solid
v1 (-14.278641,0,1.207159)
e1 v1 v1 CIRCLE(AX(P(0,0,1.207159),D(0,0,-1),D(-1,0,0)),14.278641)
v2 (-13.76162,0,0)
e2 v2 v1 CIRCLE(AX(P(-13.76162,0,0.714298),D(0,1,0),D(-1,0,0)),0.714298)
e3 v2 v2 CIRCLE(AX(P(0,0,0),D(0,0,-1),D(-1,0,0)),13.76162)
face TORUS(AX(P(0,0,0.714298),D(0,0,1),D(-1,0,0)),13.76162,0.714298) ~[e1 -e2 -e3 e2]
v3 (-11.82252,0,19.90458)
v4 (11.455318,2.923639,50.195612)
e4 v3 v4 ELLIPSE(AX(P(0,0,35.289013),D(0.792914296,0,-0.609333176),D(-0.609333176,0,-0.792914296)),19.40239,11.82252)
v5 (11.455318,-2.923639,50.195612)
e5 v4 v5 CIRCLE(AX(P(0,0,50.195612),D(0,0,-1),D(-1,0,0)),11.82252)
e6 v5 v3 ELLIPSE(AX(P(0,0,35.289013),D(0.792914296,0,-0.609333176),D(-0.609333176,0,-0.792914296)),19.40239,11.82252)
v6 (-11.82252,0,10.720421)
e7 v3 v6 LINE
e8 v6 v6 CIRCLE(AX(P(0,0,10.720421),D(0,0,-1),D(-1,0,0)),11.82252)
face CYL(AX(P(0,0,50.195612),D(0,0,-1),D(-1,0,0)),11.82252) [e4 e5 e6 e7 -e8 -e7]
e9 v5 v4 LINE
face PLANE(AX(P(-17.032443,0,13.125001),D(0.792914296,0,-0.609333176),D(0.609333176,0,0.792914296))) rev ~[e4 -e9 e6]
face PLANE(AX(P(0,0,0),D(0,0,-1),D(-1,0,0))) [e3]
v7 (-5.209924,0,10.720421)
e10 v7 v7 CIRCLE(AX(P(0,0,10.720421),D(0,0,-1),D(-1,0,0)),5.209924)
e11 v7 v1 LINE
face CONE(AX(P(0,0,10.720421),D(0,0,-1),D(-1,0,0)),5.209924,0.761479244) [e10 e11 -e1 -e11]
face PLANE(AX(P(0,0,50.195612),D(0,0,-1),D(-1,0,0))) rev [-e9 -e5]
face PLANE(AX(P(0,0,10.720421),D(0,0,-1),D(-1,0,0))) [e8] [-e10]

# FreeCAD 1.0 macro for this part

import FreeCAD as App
import Part
import Sketcher

V = App.Vector


def edges_at(feature, points):
    """Names of the edges that pass closest to the given points."""
    edges = feature.Shape.Edges
    near = lambda p: min(range(len(edges)), key=lambda i: edges[i].distToShape(Part.Vertex(*p))[0])
    return sorted({f"Edge{near(p) + 1}" for p in points})

doc = App.newDocument("Part")
body = doc.addObject("PartDesign::Body", "Body")

# Sketch on XZ plane
sketch1 = body.newObject("Sketcher::SketchObject", "Sketch")
sketch1.AttachmentSupport = (doc.getObject("XZ_Plane"), [""])
sketch1.MapMode = "FlatFace"
sketch1.addGeometry(Part.LineSegment(V(-15.42939, 0, 0), V(0, 0, 0)), False)
sketch1.addGeometry(Part.LineSegment(V(0, 0, 0), V(0, 50.195612, 0)), False)
sketch1.addGeometry(Part.LineSegment(V(0, 50.195612, 0), V(-11.82252, 50.195612, 0)), False)
sketch1.addGeometry(Part.LineSegment(V(-11.82252, 50.195612, 0), V(-11.82252, 10.720421, 0)), False)
sketch1.addGeometry(Part.LineSegment(V(-11.82252, 10.720421, 0), V(-5.209924, 10.720421, 0)), False)
sketch1.addGeometry(Part.LineSegment(V(-5.209924, 10.720421, 0), V(-15.42939, 0, 0)), False)
sketch1.addConstraint(Sketcher.Constraint("Coincident", 0, 2, 1, 1))
sketch1.addConstraint(Sketcher.Constraint("Coincident", 1, 2, 2, 1))
sketch1.addConstraint(Sketcher.Constraint("Coincident", 2, 2, 3, 1))
sketch1.addConstraint(Sketcher.Constraint("Coincident", 3, 2, 4, 1))
sketch1.addConstraint(Sketcher.Constraint("Coincident", 4, 2, 5, 1))
sketch1.addConstraint(Sketcher.Constraint("Coincident", 5, 2, 0, 1))
sketch1.addConstraint(Sketcher.Constraint("Horizontal", 0))
sketch1.addConstraint(Sketcher.Constraint("Vertical", 1))
sketch1.addConstraint(Sketcher.Constraint("Horizontal", 2))
sketch1.addConstraint(Sketcher.Constraint("Vertical", 3))
sketch1.addConstraint(Sketcher.Constraint("Horizontal", 4))
sketch1.addConstraint(Sketcher.Constraint("Coincident", 0, 2, -1, 1))
sketch1.addConstraint(Sketcher.Constraint("DistanceX", 0, 1, 0, 2, 15.42939))
sketch1.addConstraint(Sketcher.Constraint("DistanceX", 2, 2, 2, 1, 11.82252))
sketch1.addConstraint(Sketcher.Constraint("DistanceY", 1, 1, 1, 2, 50.195612))
sketch1.addConstraint(Sketcher.Constraint("DistanceY", 3, 2, 3, 1, 39.475191))
sketch1.addConstraint(Sketcher.Constraint("DistanceX", 4, 1, 4, 2, 6.612596))
revolution = body.newObject("PartDesign::Revolution", "Revolution")
revolution.Profile = sketch1
revolution.ReferenceAxis = (sketch1, ["V_Axis"])
revolution.Angle = 360

# Sketch on XZ plane
sketch2 = body.newObject("Sketcher::SketchObject", "Sketch001")
sketch2.AttachmentSupport = (doc.getObject("XZ_Plane"), [""])
sketch2.MapMode = "FlatFace"
sketch2.addGeometry(Part.LineSegment(V(-17.032443, 13.125001, 0), V(14.227101, 53.802483, 0)), False)
sketch2.addGeometry(Part.LineSegment(V(14.227101, 53.802483, 0), V(-17.032443, 55.806302, 0)), False)
sketch2.addGeometry(Part.LineSegment(V(-17.032443, 55.806302, 0), V(-17.032443, 13.125001, 0)), False)
sketch2.addConstraint(Sketcher.Constraint("Coincident", 0, 2, 1, 1))
sketch2.addConstraint(Sketcher.Constraint("Coincident", 1, 2, 2, 1))
sketch2.addConstraint(Sketcher.Constraint("Coincident", 2, 2, 0, 1))
sketch2.addConstraint(Sketcher.Constraint("Vertical", 2))
sketch2.addConstraint(Sketcher.Constraint("DistanceY", 2, 2, 2, 1, 42.681301))
sketch2.addConstraint(Sketcher.Constraint("DistanceY", -1, 1, 2, 2, 13.125001))
sketch2.addConstraint(Sketcher.Constraint("DistanceX", -1, 1, 0, 2, 14.227101))
sketch2.addConstraint(Sketcher.Constraint("DistanceY", 0, 2, 1, 2, 2.003819))
sketch2.addConstraint(Sketcher.Constraint("Distance", 0, 51.301234))
pocket1 = body.newObject("PartDesign::Pocket", "Pocket")
pocket1.Profile = sketch2
pocket1.Length = 37.4
pocket1.Midplane = True
doc.recompute()

fillet = body.newObject("PartDesign::Fillet", "Fillet")
fillet.Base = (pocket1, edges_at(pocket1, [(15.429, 0, 0)]))
fillet.Radius = 0.714298

doc.recompute()
